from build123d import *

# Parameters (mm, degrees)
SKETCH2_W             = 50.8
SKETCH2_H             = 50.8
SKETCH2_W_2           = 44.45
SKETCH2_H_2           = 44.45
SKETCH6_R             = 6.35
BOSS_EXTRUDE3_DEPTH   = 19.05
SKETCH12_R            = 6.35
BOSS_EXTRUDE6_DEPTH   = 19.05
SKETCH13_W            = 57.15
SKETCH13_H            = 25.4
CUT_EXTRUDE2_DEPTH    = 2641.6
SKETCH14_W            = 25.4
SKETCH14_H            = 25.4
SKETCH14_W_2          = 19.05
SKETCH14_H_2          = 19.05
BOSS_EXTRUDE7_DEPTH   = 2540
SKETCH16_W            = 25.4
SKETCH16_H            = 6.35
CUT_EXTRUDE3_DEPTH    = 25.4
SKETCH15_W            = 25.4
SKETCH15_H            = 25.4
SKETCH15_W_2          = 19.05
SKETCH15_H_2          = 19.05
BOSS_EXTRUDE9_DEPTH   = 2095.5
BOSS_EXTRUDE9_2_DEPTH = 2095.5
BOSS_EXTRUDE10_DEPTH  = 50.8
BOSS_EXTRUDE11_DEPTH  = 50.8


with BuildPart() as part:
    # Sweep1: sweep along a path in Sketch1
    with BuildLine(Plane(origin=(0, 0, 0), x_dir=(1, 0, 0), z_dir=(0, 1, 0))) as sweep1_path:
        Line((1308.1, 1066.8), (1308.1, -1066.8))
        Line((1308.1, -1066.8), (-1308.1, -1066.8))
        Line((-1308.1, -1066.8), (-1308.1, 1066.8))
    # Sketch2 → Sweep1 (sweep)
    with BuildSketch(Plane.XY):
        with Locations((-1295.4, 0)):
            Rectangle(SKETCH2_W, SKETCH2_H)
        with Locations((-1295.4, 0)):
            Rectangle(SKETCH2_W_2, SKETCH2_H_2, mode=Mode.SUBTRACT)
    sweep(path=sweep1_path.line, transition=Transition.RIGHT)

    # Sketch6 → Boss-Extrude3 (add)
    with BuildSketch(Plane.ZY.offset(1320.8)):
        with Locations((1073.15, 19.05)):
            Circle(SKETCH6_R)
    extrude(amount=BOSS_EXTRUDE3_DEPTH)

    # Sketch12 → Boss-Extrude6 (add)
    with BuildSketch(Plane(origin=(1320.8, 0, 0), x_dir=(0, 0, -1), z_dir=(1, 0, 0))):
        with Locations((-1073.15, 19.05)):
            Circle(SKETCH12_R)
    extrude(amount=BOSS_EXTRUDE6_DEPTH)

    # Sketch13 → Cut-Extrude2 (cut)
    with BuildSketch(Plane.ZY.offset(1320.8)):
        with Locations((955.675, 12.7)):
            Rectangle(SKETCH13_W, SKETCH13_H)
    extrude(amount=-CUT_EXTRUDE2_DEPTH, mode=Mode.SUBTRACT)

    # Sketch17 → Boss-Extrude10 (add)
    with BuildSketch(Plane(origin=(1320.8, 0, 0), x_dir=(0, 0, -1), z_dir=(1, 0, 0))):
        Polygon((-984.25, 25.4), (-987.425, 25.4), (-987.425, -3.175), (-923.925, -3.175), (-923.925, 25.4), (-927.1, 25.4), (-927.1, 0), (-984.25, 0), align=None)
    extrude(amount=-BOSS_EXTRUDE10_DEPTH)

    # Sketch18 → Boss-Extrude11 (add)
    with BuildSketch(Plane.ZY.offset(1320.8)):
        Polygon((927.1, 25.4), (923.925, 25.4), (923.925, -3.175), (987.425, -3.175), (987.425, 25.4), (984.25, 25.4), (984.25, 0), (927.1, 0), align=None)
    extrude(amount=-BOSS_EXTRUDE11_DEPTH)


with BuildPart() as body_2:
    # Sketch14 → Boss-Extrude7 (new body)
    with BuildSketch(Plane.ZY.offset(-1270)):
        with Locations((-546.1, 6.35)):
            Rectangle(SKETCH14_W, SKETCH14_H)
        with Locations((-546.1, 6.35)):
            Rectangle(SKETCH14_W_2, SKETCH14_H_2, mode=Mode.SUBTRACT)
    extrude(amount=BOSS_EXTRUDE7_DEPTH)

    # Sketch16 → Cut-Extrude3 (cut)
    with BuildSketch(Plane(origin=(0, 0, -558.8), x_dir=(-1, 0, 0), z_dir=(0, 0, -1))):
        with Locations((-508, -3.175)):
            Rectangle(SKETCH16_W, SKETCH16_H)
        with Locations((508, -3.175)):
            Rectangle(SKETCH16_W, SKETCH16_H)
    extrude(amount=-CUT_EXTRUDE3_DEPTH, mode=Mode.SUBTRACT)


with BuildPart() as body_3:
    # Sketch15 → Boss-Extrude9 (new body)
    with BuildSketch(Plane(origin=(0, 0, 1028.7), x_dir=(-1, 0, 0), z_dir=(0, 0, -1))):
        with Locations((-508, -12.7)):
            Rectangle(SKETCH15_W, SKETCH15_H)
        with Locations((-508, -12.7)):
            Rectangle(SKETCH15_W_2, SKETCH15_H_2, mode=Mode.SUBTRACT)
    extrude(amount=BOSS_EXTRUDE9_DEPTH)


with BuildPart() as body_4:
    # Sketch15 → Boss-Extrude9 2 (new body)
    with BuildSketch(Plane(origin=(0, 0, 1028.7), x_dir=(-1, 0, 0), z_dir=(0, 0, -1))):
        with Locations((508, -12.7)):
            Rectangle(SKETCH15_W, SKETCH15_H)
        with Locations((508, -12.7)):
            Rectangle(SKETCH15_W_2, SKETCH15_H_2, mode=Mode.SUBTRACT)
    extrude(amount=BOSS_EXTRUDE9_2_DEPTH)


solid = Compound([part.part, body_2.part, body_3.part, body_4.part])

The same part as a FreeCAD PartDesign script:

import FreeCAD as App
import Part
import Sketcher

V = App.Vector
Q = App.Units.Quantity


def add_polygon(sketch, points):
    """Adds a closed chain of lines whose ends are joined by coincident constraints."""
    first, n = sketch.GeometryCount, len(points)
    for a, b in zip(points, points[1:] + points[:1]):
        sketch.addGeometry(Part.LineSegment(App.Vector(*a, 0), App.Vector(*b, 0)), False)
    for i in range(n):
        sketch.addConstraint(Sketcher.Constraint("Coincident", first + i, 2, first + (i + 1) % n, 1))

doc = App.newDocument("Part")
body = doc.addObject("PartDesign::Body", "Body")

sketch1 = body.newObject("Sketcher::SketchObject", "Sketch")
sketch1.AttachmentSupport = (doc.getObject("XY_Plane"), [""])
sketch1.MapMode = "FlatFace"
add_polygon(sketch1, [(-1320.8, 25.4), (-1320.8, -25.4), (-1270, -25.4), (-1270, 25.4)])
add_polygon(sketch1, [(-1273.175, -22.225), (-1317.625, -22.225), (-1317.625, 22.225), (-1273.175, 22.225)])
sketch1.addConstraint(Sketcher.Constraint("Vertical", 0))
sketch1.addConstraint(Sketcher.Constraint("Horizontal", 1))
sketch1.addConstraint(Sketcher.Constraint("Vertical", 2))
sketch1.addConstraint(Sketcher.Constraint("Horizontal", 3))
sketch1.addConstraint(Sketcher.Constraint("Horizontal", 4))
sketch1.addConstraint(Sketcher.Constraint("Vertical", 5))
sketch1.addConstraint(Sketcher.Constraint("Horizontal", 6))
sketch1.addConstraint(Sketcher.Constraint("Vertical", 7))
sketch1.addConstraint(Sketcher.Constraint("Equal", 3, 0))
sketch1.addConstraint(Sketcher.Constraint("Equal", 6, 5))
sketch1.addConstraint(Sketcher.Constraint("DistanceX", 1, 1, 1, 2, Q("2 in")))
sketch1.addConstraint(Sketcher.Constraint("DistanceX", 0, 2, -1, 1, Q("52 in")))
sketch1.addConstraint(Sketcher.Constraint("DistanceY", 0, 2, -1, 1, Q("1 in")))
sketch1.addConstraint(Sketcher.Constraint("DistanceX", 4, 2, 4, 1, Q("1.75 in")))
sketch1.addConstraint(Sketcher.Constraint("DistanceX", 4, 2, -1, 1, Q("51.875 in")))
sketch1.addConstraint(Sketcher.Constraint("DistanceY", 4, 2, -1, 1, Q("0.875 in")))

sketch2 = body.newObject("Sketcher::SketchObject", "Sketch001")
sketch2.AttachmentSupport = (doc.getObject("XZ_Plane"), [""])
sketch2.MapMode = "FlatFace"
sketch2.addGeometry(Part.LineSegment(V(1308.1, -1066.8, 0), V(1308.1, 1066.8, 0)), False)
sketch2.addGeometry(Part.LineSegment(V(1308.1, 1066.8, 0), V(-1308.1, 1066.8, 0)), False)
sketch2.addGeometry(Part.LineSegment(V(-1308.1, 1066.8, 0), V(-1308.1, -1066.8, 0)), False)
sketch2.addConstraint(Sketcher.Constraint("Coincident", 0, 2, 1, 1))
sketch2.addConstraint(Sketcher.Constraint("Coincident", 1, 2, 2, 1))
sketch2.addConstraint(Sketcher.Constraint("Vertical", 0))
sketch2.addConstraint(Sketcher.Constraint("Horizontal", 1))
sketch2.addConstraint(Sketcher.Constraint("Vertical", 2))
sketch2.addConstraint(Sketcher.Constraint("Symmetric", 0, 1, 1, 2, -1, 1))
sketch2.addConstraint(Sketcher.Constraint("Horizontal", 0, 1, 2, 2))
sketch2.addConstraint(Sketcher.Constraint("DistanceX", 1, 2, 1, 1, Q("103 in")))
sketch2.addConstraint(Sketcher.Constraint("DistanceY", 0, 1, 0, 2, Q("84 in")))
doc.recompute()

additivepipe = body.newObject("PartDesign::AdditivePipe", "AdditivePipe")
additivepipe.Profile = sketch1
additivepipe.Spine = (sketch2, ["Edge1", "Edge2", "Edge3"])
additivepipe.Transition = "Right corner"

sketch3 = body.newObject("Sketcher::SketchObject", "Sketch002")
sketch3.AttachmentSupport = (doc.getObject("YZ_Plane"), [""])
sketch3.MapMode = "FlatFace"
sketch3.AttachmentOffset = App.Placement(V(0, 0, -52 * 25.4), App.Rotation())
sketch3.addGeometry(Part.Circle(V(19.05, 1073.15, 0), V(0, 0, 1), 6.35), False)
sketch3.addConstraint(Sketcher.Constraint("Diameter", 0, Q("0.5 in")))
sketch3.addConstraint(Sketcher.Constraint("DistanceX", -1, 1, 0, 3, Q("0.75 in")))
sketch3.addConstraint(Sketcher.Constraint("DistanceY", -1, 1, 0, 3, Q("42.25 in")))
pad1 = body.newObject("PartDesign::Pad", "Pad")
pad1.Profile = sketch3
pad1.Length = Q("0.75 in")
pad1.Reversed = True

sketch4 = body.newObject("Sketcher::SketchObject", "Sketch003")
sketch4.AttachmentSupport = (doc.getObject("YZ_Plane"), [""])
sketch4.MapMode = "FlatFace"
sketch4.AttachmentOffset = App.Placement(V(0, 0, 52 * 25.4), App.Rotation())
sketch4.addGeometry(Part.Circle(V(19.05, 1073.15, 0), V(0, 0, 1), 6.35), False)
sketch4.addConstraint(Sketcher.Constraint("Diameter", 0, Q("0.5 in")))
sketch4.addConstraint(Sketcher.Constraint("DistanceX", -1, 1, 0, 3, Q("0.75 in")))
sketch4.addConstraint(Sketcher.Constraint("DistanceY", -1, 1, 0, 3, Q("42.25 in")))
pad2 = body.newObject("PartDesign::Pad", "Pad001")
pad2.Profile = sketch4
pad2.Length = Q("0.75 in")

sketch5 = body.newObject("Sketcher::SketchObject", "Sketch004")
sketch5.AttachmentSupport = (doc.getObject("YZ_Plane"), [""])
sketch5.MapMode = "FlatFace"
sketch5.AttachmentOffset = App.Placement(V(0, 0, -52 * 25.4), App.Rotation())
add_polygon(sketch5, [(25.4, 927.1), (0, 927.1), (0, 984.25), (25.4, 984.25)])
sketch5.addConstraint(Sketcher.Constraint("Horizontal", 0))
sketch5.addConstraint(Sketcher.Constraint("Vertical", 1))
sketch5.addConstraint(Sketcher.Constraint("Horizontal", 2))
sketch5.addConstraint(Sketcher.Constraint("Vertical", 3))
sketch5.addConstraint(Sketcher.Constraint("PointOnObject", 0, 2, -2))
sketch5.addConstraint(Sketcher.Constraint("DistanceX", 0, 2, 0, 1, Q("1 in")))
sketch5.addConstraint(Sketcher.Constraint("DistanceY", 1, 1, 1, 2, Q("2.25 in")))
sketch5.addConstraint(Sketcher.Constraint("DistanceY", -1, 1, 0, 2, Q("36.5 in")))
pocket1 = body.newObject("PartDesign::Pocket", "Pocket")
pocket1.Profile = sketch5
pocket1.Length = Q("104 in")
pocket1.Reversed = True

sketch6 = body.newObject("Sketcher::SketchObject", "Sketch005")
sketch6.AttachmentSupport = (doc.getObject("YZ_Plane"), [""])
sketch6.MapMode = "FlatFace"
sketch6.AttachmentOffset = App.Placement(V(0, 0, 52 * 25.4), App.Rotation())
add_polygon(sketch6, [(25.4, 984.25), (25.4, 987.425), (-3.175, 987.425), (-3.175, 923.925), (25.4, 923.925), (25.4, 927.1), (0, 927.1), (0, 984.25)])
sketch6.addConstraint(Sketcher.Constraint("Vertical", 0))
sketch6.addConstraint(Sketcher.Constraint("Horizontal", 1))
sketch6.addConstraint(Sketcher.Constraint("Vertical", 2))
sketch6.addConstraint(Sketcher.Constraint("Horizontal", 3))
sketch6.addConstraint(Sketcher.Constraint("Vertical", 4))
sketch6.addConstraint(Sketcher.Constraint("Horizontal", 5))
sketch6.addConstraint(Sketcher.Constraint("Vertical", 6))
sketch6.addConstraint(Sketcher.Constraint("Horizontal", 7))
sketch6.addConstraint(Sketcher.Constraint("PointOnObject", 5, 2, -2))
sketch6.addConstraint(Sketcher.Constraint("Vertical", 0, 2, 3, 2))
sketch6.addConstraint(Sketcher.Constraint("Equal", 0, 4))
sketch6.addConstraint(Sketcher.Constraint("DistanceX", 5, 2, 5, 1, Q("1 in")))
sketch6.addConstraint(Sketcher.Constraint("DistanceY", 2, 2, 2, 1, Q("2.5 in")))
sketch6.addConstraint(Sketcher.Constraint("DistanceY", 6, 1, 6, 2, Q("2.25 in")))
sketch6.addConstraint(Sketcher.Constraint("DistanceY", -1, 1, 4, 2, Q("36.5 in")))
sketch6.addConstraint(Sketcher.Constraint("DistanceX", 1, 2, 1, 1, Q("1.125 in")))
pad3 = body.newObject("PartDesign::Pad", "Pad002")
pad3.Profile = sketch6
pad3.Length = Q("2 in")
pad3.Reversed = True

sketch7 = body.newObject("Sketcher::SketchObject", "Sketch006")
sketch7.AttachmentSupport = (doc.getObject("YZ_Plane"), [""])
sketch7.MapMode = "FlatFace"
sketch7.AttachmentOffset = App.Placement(V(0, 0, -52 * 25.4), App.Rotation())
add_polygon(sketch7, [(25.4, 927.1), (25.4, 923.925), (-3.175, 923.925), (-3.175, 987.425), (25.4, 987.425), (25.4, 984.25), (0, 984.25), (0, 927.1)])
sketch7.addConstraint(Sketcher.Constraint("Vertical", 0))
sketch7.addConstraint(Sketcher.Constraint("Horizontal", 1))
sketch7.addConstraint(Sketcher.Constraint("Vertical", 2))
sketch7.addConstraint(Sketcher.Constraint("Horizontal", 3))
sketch7.addConstraint(Sketcher.Constraint("Vertical", 4))
sketch7.addConstraint(Sketcher.Constraint("Horizontal", 5))
sketch7.addConstraint(Sketcher.Constraint("Vertical", 6))
sketch7.addConstraint(Sketcher.Constraint("Horizontal", 7))
sketch7.addConstraint(Sketcher.Constraint("PointOnObject", 5, 2, -2))
sketch7.addConstraint(Sketcher.Constraint("Vertical", 0, 2, 3, 2))
sketch7.addConstraint(Sketcher.Constraint("Equal", 0, 4))
sketch7.addConstraint(Sketcher.Constraint("DistanceX", 5, 2, 5, 1, Q("1 in")))
sketch7.addConstraint(Sketcher.Constraint("DistanceY", 2, 1, 2, 2, Q("2.5 in")))
sketch7.addConstraint(Sketcher.Constraint("DistanceY", 6, 2, 6, 1, Q("2.25 in")))
sketch7.addConstraint(Sketcher.Constraint("DistanceY", -1, 1, 6, 2, Q("36.5 in")))
sketch7.addConstraint(Sketcher.Constraint("DistanceX", 1, 2, 1, 1, Q("1.125 in")))
pad4 = body.newObject("PartDesign::Pad", "Pad003")
pad4.Profile = sketch7
pad4.Length = Q("2 in")
body2 = doc.addObject("PartDesign::Body", "Body001")

sketch8 = body2.newObject("Sketcher::SketchObject", "Sketch007")
sketch8.AttachmentSupport = (doc.getObject("YZ_Plane001"), [""])
sketch8.MapMode = "FlatFace"
sketch8.AttachmentOffset = App.Placement(V(0, 0, 50 * 25.4), App.Rotation())
add_polygon(sketch8, [(19.05, -558.8), (-6.35, -558.8), (-6.35, -533.4), (19.05, -533.4)])
add_polygon(sketch8, [(-3.175, -536.575), (-3.175, -555.625), (15.875, -555.625), (15.875, -536.575)])
sketch8.addConstraint(Sketcher.Constraint("Horizontal", 0))
sketch8.addConstraint(Sketcher.Constraint("Vertical", 1))
sketch8.addConstraint(Sketcher.Constraint("Horizontal", 2))
sketch8.addConstraint(Sketcher.Constraint("Vertical", 3))
sketch8.addConstraint(Sketcher.Constraint("Vertical", 4))
sketch8.addConstraint(Sketcher.Constraint("Horizontal", 5))
sketch8.addConstraint(Sketcher.Constraint("Vertical", 6))
sketch8.addConstraint(Sketcher.Constraint("Horizontal", 7))
sketch8.addConstraint(Sketcher.Constraint("Equal", 2, 1))
sketch8.addConstraint(Sketcher.Constraint("Equal", 7, 4))
sketch8.addConstraint(Sketcher.Constraint("DistanceX", 0, 2, 0, 1, Q("1 in")))
sketch8.addConstraint(Sketcher.Constraint("DistanceY", 0, 2, -1, 1, Q("22 in")))
sketch8.addConstraint(Sketcher.Constraint("DistanceX", 5, 1, 5, 2, Q("0.75 in")))
sketch8.addConstraint(Sketcher.Constraint("DistanceX", 0, 2, -1, 1, Q("0.25 in")))
sketch8.addConstraint(Sketcher.Constraint("DistanceX", 4, 2, -1, 1, Q("0.125 in")))
sketch8.addConstraint(Sketcher.Constraint("DistanceY", 4, 2, -1, 1, Q("21.875 in")))
pad5 = body2.newObject("PartDesign::Pad", "Pad004")
pad5.Profile = sketch8
pad5.Length = Q("100 in")
pad5.Reversed = True

sketch9 = body2.newObject("Sketcher::SketchObject", "Sketch008")
sketch9.AttachmentSupport = (doc.getObject("XY_Plane001"), [""])
sketch9.MapMode = "FlatFace"
sketch9.AttachmentOffset = App.Placement(V(0, 0, -22 * 25.4), App.Rotation())
add_polygon(sketch9, [(520.7, 0), (520.7, -6.35), (495.3, -6.35), (495.3, 0)])
add_polygon(sketch9, [(-495.3, 0), (-495.3, -6.35), (-520.7, -6.35), (-520.7, 0)])
sketch9.addConstraint(Sketcher.Constraint("Vertical", 0))
sketch9.addConstraint(Sketcher.Constraint("Horizontal", 1))
sketch9.addConstraint(Sketcher.Constraint("Vertical", 2))
sketch9.addConstraint(Sketcher.Constraint("Horizontal", 3))
sketch9.addConstraint(Sketcher.Constraint("Vertical", 4))
sketch9.addConstraint(Sketcher.Constraint("Horizontal", 5))
sketch9.addConstraint(Sketcher.Constraint("Vertical", 6))
sketch9.addConstraint(Sketcher.Constraint("Horizontal", 7))
sketch9.addConstraint(Sketcher.Constraint("Symmetric", 3, 2, 6, 2, -1, 1))
sketch9.addConstraint(Sketcher.Constraint("Symmetric", 1, 2, 4, 2, -2))
sketch9.addConstraint(Sketcher.Constraint("PointOnObject", 2, 2, -1))
sketch9.addConstraint(Sketcher.Constraint("DistanceX", 1, 2, 1, 1, Q("1 in")))
sketch9.addConstraint(Sketcher.Constraint("DistanceX", 4, 2, 1, 2, Q("39 in")))
sketch9.addConstraint(Sketcher.Constraint("DistanceY", 0, 2, 0, 1, Q("0.25 in")))
pocket2 = body2.newObject("PartDesign::Pocket", "Pocket001")
pocket2.Profile = sketch9
pocket2.Length = Q("1 in")
pocket2.Reversed = True
body3 = doc.addObject("PartDesign::Body", "Body002")

sketch10 = body3.newObject("Sketcher::SketchObject", "Sketch009")
sketch10.AttachmentSupport = (doc.getObject("XY_Plane002"), [""])
sketch10.MapMode = "FlatFace"
sketch10.AttachmentOffset = App.Placement(V(0, 0, 40.5 * 25.4), App.Rotation())
add_polygon(sketch10, [(520.7, 0), (520.7, -25.4), (495.3, -25.4), (495.3, 0)])
add_polygon(sketch10, [(498.475, -22.225), (517.525, -22.225), (517.525, -3.175), (498.475, -3.175)])
sketch10.addConstraint(Sketcher.Constraint("Vertical", 0))
sketch10.addConstraint(Sketcher.Constraint("Horizontal", 1))
sketch10.addConstraint(Sketcher.Constraint("Vertical", 2))
sketch10.addConstraint(Sketcher.Constraint("Horizontal", 3))
sketch10.addConstraint(Sketcher.Constraint("Horizontal", 4))
sketch10.addConstraint(Sketcher.Constraint("Vertical", 5))
sketch10.addConstraint(Sketcher.Constraint("Horizontal", 6))
sketch10.addConstraint(Sketcher.Constraint("Vertical", 7))
sketch10.addConstraint(Sketcher.Constraint("PointOnObject", 2, 2, -1))
sketch10.addConstraint(Sketcher.Constraint("Equal", 3, 0))
sketch10.addConstraint(Sketcher.Constraint("Equal", 6, 5))
sketch10.addConstraint(Sketcher.Constraint("DistanceX", 1, 2, 1, 1, Q("1 in")))
sketch10.addConstraint(Sketcher.Constraint("DistanceX", 4, 1, 4, 2, Q("0.75 in")))
sketch10.addConstraint(Sketcher.Constraint("DistanceX", -1, 1, 0, 2, Q("20.5 in")))
sketch10.addConstraint(Sketcher.Constraint("DistanceX", -1, 1, 4, 2, Q("20.375 in")))
sketch10.addConstraint(Sketcher.Constraint("DistanceY", 4, 2, -1, 1, Q("0.875 in")))
pad6 = body3.newObject("PartDesign::Pad", "Pad005")
pad6.Profile = sketch10
pad6.Length = Q("82.5 in")
pad6.Reversed = True
body4 = doc.addObject("PartDesign::Body", "Body003")

sketch11 = body4.newObject("Sketcher::SketchObject", "Sketch010")
sketch11.AttachmentSupport = (doc.getObject("XY_Plane003"), [""])
sketch11.MapMode = "FlatFace"
sketch11.AttachmentOffset = App.Placement(V(0, 0, 40.5 * 25.4), App.Rotation())
add_polygon(sketch11, [(-495.3, 0), (-495.3, -25.4), (-520.7, -25.4), (-520.7, 0)])
add_polygon(sketch11, [(-517.525, -22.225), (-498.475, -22.225), (-498.475, -3.175), (-517.525, -3.175)])
sketch11.addConstraint(Sketcher.Constraint("Vertical", 0))
sketch11.addConstraint(Sketcher.Constraint("Horizontal", 1))
sketch11.addConstraint(Sketcher.Constraint("Vertical", 2))
sketch11.addConstraint(Sketcher.Constraint("Horizontal", 3))
sketch11.addConstraint(Sketcher.Constraint("Horizontal", 4))
sketch11.addConstraint(Sketcher.Constraint("Vertical", 5))
sketch11.addConstraint(Sketcher.Constraint("Horizontal", 6))
sketch11.addConstraint(Sketcher.Constraint("Vertical", 7))
sketch11.addConstraint(Sketcher.Constraint("PointOnObject", 2, 2, -1))
sketch11.addConstraint(Sketcher.Constraint("Equal", 3, 0))
sketch11.addConstraint(Sketcher.Constraint("Equal", 6, 5))
sketch11.addConstraint(Sketcher.Constraint("DistanceX", 1, 2, 1, 1, Q("1 in")))
sketch11.addConstraint(Sketcher.Constraint("DistanceX", 4, 1, 4, 2, Q("0.75 in")))
sketch11.addConstraint(Sketcher.Constraint("DistanceX", 0, 2, -1, 1, Q("19.5 in")))
sketch11.addConstraint(Sketcher.Constraint("DistanceX", 4, 2, -1, 1, Q("19.625 in")))
sketch11.addConstraint(Sketcher.Constraint("DistanceY", 4, 2, -1, 1, Q("0.875 in")))
pad7 = body4.newObject("PartDesign::Pad", "Pad006")
pad7.Profile = sketch11
pad7.Length = Q("82.5 in")
pad7.Reversed = True

doc.recompute()
